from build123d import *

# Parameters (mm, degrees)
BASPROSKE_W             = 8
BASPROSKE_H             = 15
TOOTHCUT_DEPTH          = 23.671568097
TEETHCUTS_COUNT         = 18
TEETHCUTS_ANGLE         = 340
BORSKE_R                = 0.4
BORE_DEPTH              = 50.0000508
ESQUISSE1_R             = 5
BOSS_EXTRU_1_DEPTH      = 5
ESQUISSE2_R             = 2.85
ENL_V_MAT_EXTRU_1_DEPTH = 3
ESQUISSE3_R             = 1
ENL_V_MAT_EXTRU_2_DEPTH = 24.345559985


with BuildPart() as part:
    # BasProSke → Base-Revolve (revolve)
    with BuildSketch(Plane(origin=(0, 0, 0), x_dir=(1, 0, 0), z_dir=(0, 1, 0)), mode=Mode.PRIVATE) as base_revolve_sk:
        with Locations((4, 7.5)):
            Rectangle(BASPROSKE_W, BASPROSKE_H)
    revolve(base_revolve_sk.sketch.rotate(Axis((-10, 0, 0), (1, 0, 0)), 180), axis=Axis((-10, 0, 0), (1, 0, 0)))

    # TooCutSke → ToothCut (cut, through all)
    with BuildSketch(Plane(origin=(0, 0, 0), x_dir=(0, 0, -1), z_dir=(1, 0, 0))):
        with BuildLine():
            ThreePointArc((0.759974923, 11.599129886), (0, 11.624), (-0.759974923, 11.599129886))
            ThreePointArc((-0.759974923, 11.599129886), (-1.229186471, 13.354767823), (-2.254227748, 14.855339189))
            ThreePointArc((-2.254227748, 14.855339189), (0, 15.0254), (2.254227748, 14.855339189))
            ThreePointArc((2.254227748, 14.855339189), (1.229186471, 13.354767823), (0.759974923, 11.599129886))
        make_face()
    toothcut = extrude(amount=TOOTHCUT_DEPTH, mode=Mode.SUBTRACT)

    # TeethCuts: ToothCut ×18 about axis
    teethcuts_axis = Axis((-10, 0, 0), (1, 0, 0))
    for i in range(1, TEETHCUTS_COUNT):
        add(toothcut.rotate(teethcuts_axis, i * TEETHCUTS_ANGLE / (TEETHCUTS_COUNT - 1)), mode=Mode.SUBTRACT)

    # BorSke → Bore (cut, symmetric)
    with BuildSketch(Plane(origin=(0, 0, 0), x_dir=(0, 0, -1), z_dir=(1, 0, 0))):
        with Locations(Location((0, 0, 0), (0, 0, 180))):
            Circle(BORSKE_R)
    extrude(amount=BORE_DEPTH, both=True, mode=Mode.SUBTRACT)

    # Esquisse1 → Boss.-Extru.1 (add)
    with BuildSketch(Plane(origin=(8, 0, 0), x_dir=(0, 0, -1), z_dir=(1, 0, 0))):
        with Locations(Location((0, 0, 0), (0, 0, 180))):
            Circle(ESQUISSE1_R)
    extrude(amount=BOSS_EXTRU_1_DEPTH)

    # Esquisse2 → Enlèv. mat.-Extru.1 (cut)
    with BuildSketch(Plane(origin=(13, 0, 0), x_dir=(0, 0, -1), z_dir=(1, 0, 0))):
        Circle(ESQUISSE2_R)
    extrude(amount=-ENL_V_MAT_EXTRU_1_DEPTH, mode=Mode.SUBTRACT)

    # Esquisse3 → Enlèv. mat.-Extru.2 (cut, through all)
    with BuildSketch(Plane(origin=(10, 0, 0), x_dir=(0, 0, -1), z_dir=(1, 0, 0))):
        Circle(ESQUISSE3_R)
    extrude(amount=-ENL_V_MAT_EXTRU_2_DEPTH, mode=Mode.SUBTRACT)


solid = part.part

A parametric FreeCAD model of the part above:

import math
import FreeCAD as App
import Part
import Sketcher


def add_polygon(sketch, points):
    """Adds a closed chain of lines whose ends are joined by coincident constraints."""
    first, n = sketch.GeometryCount, len(points)
    for a, b in zip(points, points[1:] + points[:1]):
        sketch.addGeometry(Part.LineSegment(App.Vector(*a, 0), App.Vector(*b, 0)), False)
    for i in range(n):
        sketch.addConstraint(Sketcher.Constraint("Coincident", first + i, 2, first + (i + 1) % n, 1))

doc = App.newDocument("Part")
body = doc.addObject("PartDesign::Body", "Body")

# Sketch on XZ plane
sketch1 = doc.addObject("Sketcher::SketchObject", "Sketch")
body.addObject(sketch1)
sketch1.AttachmentSupport = (doc.XZ_Plane, [""])
sketch1.MapMode = "FlatFace"
add_polygon(sketch1, [(0, -15), (0, 0), (8, 0), (8, -15)])  # lines 0-3
sketch1.addConstraint(Sketcher.Constraint("Vertical", 0))
sketch1.addConstraint(Sketcher.Constraint("Horizontal", 1))
sketch1.addConstraint(Sketcher.Constraint("Vertical", 2))
sketch1.addConstraint(Sketcher.Constraint("Horizontal", 3))
sketch1.addConstraint(Sketcher.Constraint("Coincident", 0, 2, -1, 1))
sketch1.addConstraint(Sketcher.Constraint("DistanceX", 1, 1, 1, 2, 8.0))
sketch1.addConstraint(Sketcher.Constraint("DistanceY", 0, 1, 0, 2, 15.0))
revolution = doc.addObject("PartDesign::Revolution", "Revolution")
body.addObject(revolution)
revolution.Profile = sketch1
revolution.ReferenceAxis = (sketch1, ["H_Axis"])
revolution.Angle = 360

# Sketch on YZ plane
sketch2 = doc.addObject("Sketcher::SketchObject", "Sketch001")
body.addObject(sketch2)
sketch2.AttachmentSupport = (doc.YZ_Plane, [""])
sketch2.MapMode = "FlatFace"
sketch2.addGeometry(Part.ArcOfCircle(Part.Circle(App.Vector(0, 0, 0), App.Vector(0, 0, 1), 11.6), math.radians(-3.75), math.radians(3.75)), False)
sketch2.addGeometry(Part.ArcOfCircle(Part.Circle(App.Vector(11.1, -6.1, 0), App.Vector(0, 0, 1), 5.4), math.radians(46), math.radians(85)), False)
sketch2.addGeometry(Part.ArcOfCircle(Part.Circle(App.Vector(0, 0, 0), App.Vector(0, 0, 1), 15), math.radians(-8.63), math.radians(8.63)), False)
sketch2.addGeometry(Part.ArcOfCircle(Part.Circle(App.Vector(11.1, 6.1, 0), App.Vector(0, 0, 1), 5.4), math.radians(-85), math.radians(-46)), False)
sketch2.addConstraint(Sketcher.Constraint("Coincident", 0, 1, 1, 2))
sketch2.addConstraint(Sketcher.Constraint("Coincident", 1, 1, 2, 1))
sketch2.addConstraint(Sketcher.Constraint("Coincident", 2, 2, 3, 2))
sketch2.addConstraint(Sketcher.Constraint("Coincident", 3, 1, 0, 2))
sketch2.addConstraint(Sketcher.Constraint("Coincident", 0, 3, -1, 1))
sketch2.addConstraint(Sketcher.Constraint("Coincident", 2, 3, -1, 1))
sketch2.addConstraint(Sketcher.Constraint("Equal", 1, 3))
sketch2.addConstraint(Sketcher.Constraint("Symmetric", 1, 3, 3, 3, -1))
sketch2.addConstraint(Sketcher.Constraint("Radius", 1, 5.4))
sketch2.addConstraint(Sketcher.Constraint("Radius", 0, 11.624))
sketch2.addConstraint(Sketcher.Constraint("Radius", 2, 15.0254))
sketch2.addConstraint(Sketcher.Constraint("DistanceX", -1, 1, 1, 3, 11.102561))
sketch2.addConstraint(Sketcher.Constraint("DistanceX", -1, 1, 0, 1, 11.59913))
pocket1 = doc.addObject("PartDesign::Pocket", "Pocket")
body.addObject(pocket1)
pocket1.Profile = sketch2
pocket1.Type = "ThroughAll"
pocket1.Reversed = True
doc.recompute()

polarpattern = doc.addObject("PartDesign::PolarPattern", "PolarPattern")
body.addObject(polarpattern)
polarpattern.Originals = [pocket1]
polarpattern.Axis = (doc.X_Axis, [""])
polarpattern.Angle = 360
polarpattern.Occurrences = 18
body.Tip = polarpattern

# Sketch on YZ plane
sketch3 = doc.addObject("Sketcher::SketchObject", "Sketch002")
body.addObject(sketch3)
sketch3.AttachmentSupport = (doc.YZ_Plane, [""])
sketch3.MapMode = "FlatFace"
sketch3.addGeometry(Part.Circle(App.Vector(0, 0, 0), App.Vector(0, 0, 1), 0.4), False)
sketch3.addConstraint(Sketcher.Constraint("Coincident", 0, 3, -1, 1))
sketch3.addConstraint(Sketcher.Constraint("Diameter", 0, 0.8))
pocket2 = doc.addObject("PartDesign::Pocket", "Pocket001")
body.addObject(pocket2)
pocket2.Profile = sketch3
pocket2.Length = 100.000102
pocket2.Midplane = True

# Sketch on YZ plane
sketch4 = doc.addObject("Sketcher::SketchObject", "Sketch003")
body.addObject(sketch4)
sketch4.AttachmentSupport = (doc.YZ_Plane, [""])
sketch4.MapMode = "FlatFace"
sketch4.AttachmentOffset = App.Placement(App.Vector(0, 0, 8), App.Rotation())
sketch4.addGeometry(Part.Circle(App.Vector(0, 0, 0), App.Vector(0, 0, 1), 5), False)
sketch4.addConstraint(Sketcher.Constraint("Coincident", 0, 3, -1, 1))
sketch4.addConstraint(Sketcher.Constraint("Diameter", 0, 10.0))
pad1 = doc.addObject("PartDesign::Pad", "Pad")
body.addObject(pad1)
pad1.Profile = sketch4
pad1.Length = 5

# Sketch on YZ plane
sketch5 = doc.addObject("Sketcher::SketchObject", "Sketch004")
body.addObject(sketch5)
sketch5.AttachmentSupport = (doc.YZ_Plane, [""])
sketch5.MapMode = "FlatFace"
sketch5.AttachmentOffset = App.Placement(App.Vector(0, 0, 13), App.Rotation())
sketch5.addGeometry(Part.Circle(App.Vector(0, 0, 0), App.Vector(0, 0, 1), 2.9), False)
sketch5.addConstraint(Sketcher.Constraint("Coincident", 0, 3, -1, 1))
sketch5.addConstraint(Sketcher.Constraint("Diameter", 0, 5.7))
pocket3 = doc.addObject("PartDesign::Pocket", "Pocket002")
body.addObject(pocket3)
pocket3.Profile = sketch5
pocket3.Length = 3

# Sketch on YZ plane
sketch6 = doc.addObject("Sketcher::SketchObject", "Sketch005")
body.addObject(sketch6)
sketch6.AttachmentSupport = (doc.YZ_Plane, [""])
sketch6.MapMode = "FlatFace"
sketch6.AttachmentOffset = App.Placement(App.Vector(0, 0, 10), App.Rotation())
sketch6.addGeometry(Part.Circle(App.Vector(0, 0, 0), App.Vector(0, 0, 1), 1), False)
sketch6.addConstraint(Sketcher.Constraint("Coincident", 0, 3, -1, 1))
sketch6.addConstraint(Sketcher.Constraint("Diameter", 0, 2.0))
pocket4 = doc.addObject("PartDesign::Pocket", "Pocket003")
body.addObject(pocket4)
pocket4.Profile = sketch6
pocket4.Type = "ThroughAll"

doc.recompute()
